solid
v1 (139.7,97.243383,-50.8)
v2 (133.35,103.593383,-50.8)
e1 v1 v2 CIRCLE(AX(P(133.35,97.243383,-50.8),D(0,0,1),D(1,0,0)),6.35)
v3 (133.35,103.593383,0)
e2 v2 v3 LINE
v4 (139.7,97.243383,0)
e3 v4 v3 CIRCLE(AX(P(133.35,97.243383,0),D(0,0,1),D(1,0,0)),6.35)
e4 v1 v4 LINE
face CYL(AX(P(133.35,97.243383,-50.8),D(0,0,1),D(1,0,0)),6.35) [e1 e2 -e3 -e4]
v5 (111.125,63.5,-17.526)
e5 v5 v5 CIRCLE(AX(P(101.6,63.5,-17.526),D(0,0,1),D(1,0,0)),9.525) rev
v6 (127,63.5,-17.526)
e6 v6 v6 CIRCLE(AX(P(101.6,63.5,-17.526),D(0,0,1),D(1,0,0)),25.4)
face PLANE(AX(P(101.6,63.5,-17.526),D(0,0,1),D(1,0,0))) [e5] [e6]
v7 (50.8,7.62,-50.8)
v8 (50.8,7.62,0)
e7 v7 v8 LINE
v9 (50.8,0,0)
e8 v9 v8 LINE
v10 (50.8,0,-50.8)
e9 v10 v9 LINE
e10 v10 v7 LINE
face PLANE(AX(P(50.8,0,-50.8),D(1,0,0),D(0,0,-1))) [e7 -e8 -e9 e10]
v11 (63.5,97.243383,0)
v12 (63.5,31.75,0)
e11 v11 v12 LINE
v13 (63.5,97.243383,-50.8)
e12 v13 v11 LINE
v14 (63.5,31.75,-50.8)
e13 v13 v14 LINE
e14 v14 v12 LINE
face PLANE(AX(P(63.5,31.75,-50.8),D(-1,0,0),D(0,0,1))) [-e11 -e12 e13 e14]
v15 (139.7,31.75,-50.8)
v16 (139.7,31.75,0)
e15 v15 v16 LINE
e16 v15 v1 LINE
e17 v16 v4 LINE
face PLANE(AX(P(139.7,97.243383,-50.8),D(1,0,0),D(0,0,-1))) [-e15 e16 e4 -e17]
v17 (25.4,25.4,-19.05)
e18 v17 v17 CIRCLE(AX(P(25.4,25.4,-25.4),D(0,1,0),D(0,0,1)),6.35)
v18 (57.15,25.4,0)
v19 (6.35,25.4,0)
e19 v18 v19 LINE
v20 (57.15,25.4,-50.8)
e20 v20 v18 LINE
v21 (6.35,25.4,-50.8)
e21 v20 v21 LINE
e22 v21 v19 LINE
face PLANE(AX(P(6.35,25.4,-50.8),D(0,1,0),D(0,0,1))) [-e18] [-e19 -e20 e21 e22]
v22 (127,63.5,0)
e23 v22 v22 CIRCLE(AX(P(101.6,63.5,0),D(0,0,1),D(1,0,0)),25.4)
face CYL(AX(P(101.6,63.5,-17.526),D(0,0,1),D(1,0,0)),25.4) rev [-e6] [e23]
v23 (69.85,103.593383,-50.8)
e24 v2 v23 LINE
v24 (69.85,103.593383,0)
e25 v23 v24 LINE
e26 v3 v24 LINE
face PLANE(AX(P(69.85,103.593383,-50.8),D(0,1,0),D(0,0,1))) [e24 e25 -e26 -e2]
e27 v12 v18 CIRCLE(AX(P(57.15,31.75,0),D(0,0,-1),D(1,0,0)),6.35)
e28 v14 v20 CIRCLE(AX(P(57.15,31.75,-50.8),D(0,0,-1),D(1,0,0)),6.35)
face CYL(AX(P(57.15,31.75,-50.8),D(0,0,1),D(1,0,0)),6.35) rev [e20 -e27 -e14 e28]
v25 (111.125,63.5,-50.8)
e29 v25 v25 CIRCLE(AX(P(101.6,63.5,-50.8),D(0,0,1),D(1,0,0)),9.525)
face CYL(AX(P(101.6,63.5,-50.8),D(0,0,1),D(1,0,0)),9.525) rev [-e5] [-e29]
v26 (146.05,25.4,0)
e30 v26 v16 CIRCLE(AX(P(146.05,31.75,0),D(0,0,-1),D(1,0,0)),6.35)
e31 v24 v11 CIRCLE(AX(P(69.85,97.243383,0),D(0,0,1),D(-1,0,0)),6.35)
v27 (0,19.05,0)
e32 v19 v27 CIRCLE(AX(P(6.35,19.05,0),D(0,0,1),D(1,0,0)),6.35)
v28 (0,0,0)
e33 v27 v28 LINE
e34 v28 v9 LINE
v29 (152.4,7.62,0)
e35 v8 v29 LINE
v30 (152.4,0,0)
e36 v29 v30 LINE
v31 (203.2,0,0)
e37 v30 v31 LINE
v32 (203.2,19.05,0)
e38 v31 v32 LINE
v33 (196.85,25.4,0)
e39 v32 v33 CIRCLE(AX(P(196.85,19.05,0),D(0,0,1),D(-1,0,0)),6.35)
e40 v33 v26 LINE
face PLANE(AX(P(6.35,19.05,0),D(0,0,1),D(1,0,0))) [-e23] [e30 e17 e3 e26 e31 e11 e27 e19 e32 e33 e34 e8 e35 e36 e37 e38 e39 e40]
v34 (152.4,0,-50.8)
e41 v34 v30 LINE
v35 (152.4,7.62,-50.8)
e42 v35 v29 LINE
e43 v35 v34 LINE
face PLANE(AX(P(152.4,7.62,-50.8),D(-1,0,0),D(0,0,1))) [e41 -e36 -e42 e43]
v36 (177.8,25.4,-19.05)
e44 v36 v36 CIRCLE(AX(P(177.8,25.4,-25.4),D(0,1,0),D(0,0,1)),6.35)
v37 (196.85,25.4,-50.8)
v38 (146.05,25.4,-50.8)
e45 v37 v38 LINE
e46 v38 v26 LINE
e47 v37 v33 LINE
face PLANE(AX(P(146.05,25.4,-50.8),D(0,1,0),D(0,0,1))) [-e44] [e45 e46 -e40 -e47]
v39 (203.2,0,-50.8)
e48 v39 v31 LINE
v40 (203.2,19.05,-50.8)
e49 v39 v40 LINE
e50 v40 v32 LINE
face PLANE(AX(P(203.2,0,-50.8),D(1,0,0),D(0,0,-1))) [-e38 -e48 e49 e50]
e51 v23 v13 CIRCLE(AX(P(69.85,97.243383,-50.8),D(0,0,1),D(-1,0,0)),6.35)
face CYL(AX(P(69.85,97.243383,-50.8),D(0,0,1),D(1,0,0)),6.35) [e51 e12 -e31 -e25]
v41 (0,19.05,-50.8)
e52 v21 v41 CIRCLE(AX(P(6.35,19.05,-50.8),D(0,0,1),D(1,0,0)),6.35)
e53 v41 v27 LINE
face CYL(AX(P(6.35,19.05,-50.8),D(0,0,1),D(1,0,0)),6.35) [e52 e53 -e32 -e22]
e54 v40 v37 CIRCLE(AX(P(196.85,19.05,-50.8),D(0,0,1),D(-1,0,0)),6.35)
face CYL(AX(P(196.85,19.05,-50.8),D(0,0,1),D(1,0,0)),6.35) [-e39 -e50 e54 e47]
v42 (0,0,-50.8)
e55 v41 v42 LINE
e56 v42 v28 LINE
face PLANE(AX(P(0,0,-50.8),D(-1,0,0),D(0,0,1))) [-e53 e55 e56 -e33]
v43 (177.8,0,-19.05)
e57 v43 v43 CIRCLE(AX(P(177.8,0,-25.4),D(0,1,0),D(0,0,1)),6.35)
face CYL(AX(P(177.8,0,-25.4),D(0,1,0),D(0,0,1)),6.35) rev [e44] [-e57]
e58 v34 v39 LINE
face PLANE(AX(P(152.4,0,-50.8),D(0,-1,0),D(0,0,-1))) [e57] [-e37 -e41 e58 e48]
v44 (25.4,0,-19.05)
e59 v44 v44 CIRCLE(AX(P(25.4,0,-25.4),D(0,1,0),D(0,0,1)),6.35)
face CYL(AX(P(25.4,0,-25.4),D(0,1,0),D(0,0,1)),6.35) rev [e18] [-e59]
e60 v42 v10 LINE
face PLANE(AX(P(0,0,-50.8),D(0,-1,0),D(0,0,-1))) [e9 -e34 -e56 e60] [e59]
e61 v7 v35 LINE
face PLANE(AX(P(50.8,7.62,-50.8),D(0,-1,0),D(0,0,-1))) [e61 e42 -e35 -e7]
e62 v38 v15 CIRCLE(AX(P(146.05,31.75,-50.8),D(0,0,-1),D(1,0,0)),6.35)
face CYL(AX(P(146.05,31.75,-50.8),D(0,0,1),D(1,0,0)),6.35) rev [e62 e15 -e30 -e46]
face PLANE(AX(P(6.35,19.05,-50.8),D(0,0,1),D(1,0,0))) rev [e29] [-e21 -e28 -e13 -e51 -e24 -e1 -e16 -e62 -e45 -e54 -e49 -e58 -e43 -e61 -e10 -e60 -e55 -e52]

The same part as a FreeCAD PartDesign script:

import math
import FreeCAD as App
import Part
import Sketcher
from FreeCAD import Vector
Q = App.Units.Quantity

doc = App.newDocument("Part")
body = doc.addObject("PartDesign::Body", "Body")

# Sketch on XY plane
sketch1 = body.newObject("Sketcher::SketchObject", "Sketch")
sketch1.AttachmentSupport = (doc.getObject("XY_Plane"), [""])
sketch1.MapMode = "FlatFace"
sketch1.addGeometry([
    Part.LineSegment(Vector(57, 25, 0), Vector(6, 25, 0)),  # 0
    Part.ArcOfCircle(Part.Circle(Vector(6, 19, 0), Vector(0, 0, 1), 6), math.radians(90), math.radians(180)),  # 1
    Part.LineSegment(Vector(0, 19, 0), Vector(0, 0, 0)),  # 2
    Part.LineSegment(Vector(0, 0, 0), Vector(51, 0, 0)),  # 3
    Part.LineSegment(Vector(51, 0, 0), Vector(51, 8, 0)),  # 4
    Part.LineSegment(Vector(51, 8, 0), Vector(152, 8, 0)),  # 5
    Part.LineSegment(Vector(152, 8, 0), Vector(152, 0, 0)),  # 6
    Part.LineSegment(Vector(152, 0, 0), Vector(203, 0, 0)),  # 7
    Part.LineSegment(Vector(203, 0, 0), Vector(203, 19, 0)),  # 8
    Part.ArcOfCircle(Part.Circle(Vector(197, 19, 0), Vector(0, 0, 1), 6), math.radians(0), math.radians(90)),  # 9
    Part.LineSegment(Vector(197, 25, 0), Vector(146, 25, 0)),  # 10
    Part.ArcOfCircle(Part.Circle(Vector(146, 32, 0), Vector(0, 0, 1), 6), math.radians(180), math.radians(270)),  # 11
    Part.LineSegment(Vector(140, 32, 0), Vector(140, 97, 0)),  # 12
    Part.ArcOfCircle(Part.Circle(Vector(133, 97, 0), Vector(0, 0, 1), 6), math.radians(0), math.radians(90)),  # 13
    Part.LineSegment(Vector(133, 104, 0), Vector(70, 104, 0)),  # 14
    Part.ArcOfCircle(Part.Circle(Vector(70, 97, 0), Vector(0, 0, 1), 6), math.radians(90), math.radians(180)),  # 15
    Part.LineSegment(Vector(64, 97, 0), Vector(64, 32, 0)),  # 16
    Part.ArcOfCircle(Part.Circle(Vector(57, 32, 0), Vector(0, 0, 1), 6), math.radians(-90), math.radians(0)),  # 17
], False)
sketch1.addConstraint([
    Sketcher.Constraint("Tangent", 0, 2, 1, 1),
    Sketcher.Constraint("Tangent", 1, 2, 2, 1),
    Sketcher.Constraint("Coincident", 2, 2, 3, 1),
    Sketcher.Constraint("Coincident", 3, 2, 4, 1),
    Sketcher.Constraint("Coincident", 4, 2, 5, 1),
    Sketcher.Constraint("Coincident", 5, 2, 6, 1),
    Sketcher.Constraint("Coincident", 6, 2, 7, 1),
    Sketcher.Constraint("Coincident", 7, 2, 8, 1),
    Sketcher.Constraint("Tangent", 8, 2, 9, 1),
    Sketcher.Constraint("Tangent", 9, 2, 10, 1),
    Sketcher.Constraint("Tangent", 10, 2, 11, 2),
    Sketcher.Constraint("Tangent", 11, 1, 12, 1),
    Sketcher.Constraint("Tangent", 12, 2, 13, 1),
    Sketcher.Constraint("Tangent", 13, 2, 14, 1),
    Sketcher.Constraint("Tangent", 14, 2, 15, 1),
    Sketcher.Constraint("Tangent", 15, 2, 16, 1),
    Sketcher.Constraint("Tangent", 16, 2, 17, 2),
    Sketcher.Constraint("Tangent", 17, 1, 0, 1),
    Sketcher.Constraint("Horizontal", 0),
    Sketcher.Constraint("Vertical", 2),
    Sketcher.Constraint("Horizontal", 3),
    Sketcher.Constraint("Vertical", 4),
    Sketcher.Constraint("Horizontal", 5),
    Sketcher.Constraint("Vertical", 6),
    Sketcher.Constraint("Horizontal", 7),
    Sketcher.Constraint("Vertical", 8),
    Sketcher.Constraint("Horizontal", 10),
    Sketcher.Constraint("Vertical", 12),
    Sketcher.Constraint("Horizontal", 14),
    Sketcher.Constraint("Vertical", 16),
    Sketcher.Constraint("Coincident", 2, 2, -1, 1),
    Sketcher.Constraint("Equal", 1, 9),
    Sketcher.Constraint("Equal", 9, 11),
    Sketcher.Constraint("Equal", 11, 13),
    Sketcher.Constraint("Equal", 13, 15),
    Sketcher.Constraint("Equal", 15, 17),
    Sketcher.Constraint("PointOnObject", 6, 2, -1),
    Sketcher.Constraint("Horizontal", 1, 3, 9, 3),
    Sketcher.Constraint("Equal", 0, 3),
    Sketcher.Constraint("Equal", 3, 7),
    Sketcher.Constraint("Equal", 7, 10),
    Sketcher.Constraint("DistanceX", 0, 2, 0, 1, Q("2 in")),
    Sketcher.Constraint("DistanceX", 5, 1, 5, 2, Q("4 in")),
    Sketcher.Constraint("Radius", 1, Q("0.25 in")),
    Sketcher.Constraint("DistanceY", 4, 1, 4, 2, Q("0.3 in")),
    Sketcher.Constraint("DistanceY", -1, 1, 0, 2, Q("1 in")),
    Sketcher.Constraint("DistanceY", 12, 1, 12, 2, Q("65.493383 mm")),
])
pad1 = body.newObject("PartDesign::Pad", "Pad")
pad1.Profile = sketch1
pad1.Length = Q("2 in")
pad1.Reversed = True

# Sketch on XY plane
sketch2 = body.newObject("Sketcher::SketchObject", "Sketch001")
sketch2.AttachmentSupport = (doc.getObject("XY_Plane"), [""])
sketch2.MapMode = "FlatFace"
sketch2.addGeometry(Part.Circle(Vector(102, 64, 0), Vector(0, 0, 1), 10), False)
sketch2.addConstraint([
    Sketcher.Constraint("Diameter", 0, Q("0.75 in")),
    Sketcher.Constraint("DistanceX", -1, 1, 0, 3, Q("4 in")),
    Sketcher.Constraint("DistanceY", -1, 1, 0, 3, Q("2.5 in")),
])
pocket1 = body.newObject("PartDesign::Pocket", "Pocket")
pocket1.Profile = sketch2
pocket1.Length = Q("2 in")

# Sketch on XY plane
sketch3 = body.newObject("Sketcher::SketchObject", "Sketch002")
sketch3.AttachmentSupport = (doc.getObject("XY_Plane"), [""])
sketch3.MapMode = "FlatFace"
sketch3.addGeometry(Part.Circle(Vector(102, 64, 0), Vector(0, 0, 1), 25), False)
sketch3.addConstraint([
    Sketcher.Constraint("Diameter", 0, Q("2 in")),
    Sketcher.Constraint("DistanceX", -1, 1, 0, 3, Q("4 in")),
    Sketcher.Constraint("DistanceY", -1, 1, 0, 3, Q("2.5 in")),
])
pocket2 = body.newObject("PartDesign::Pocket", "Pocket001")
pocket2.Profile = sketch3
pocket2.Length = Q("0.69 in")

# Sketch on XZ plane
sketch4 = body.newObject("Sketcher::SketchObject", "Sketch003")
sketch4.AttachmentSupport = (doc.getObject("XZ_Plane"), [""])
sketch4.MapMode = "FlatFace"
sketch4.AttachmentOffset = App.Placement(Vector(0, 0, -1 * 25.4), App.Rotation())
sketch4.addGeometry(Part.Circle(Vector(25, -25, 0), Vector(0, 0, 1), 6), False)
sketch4.addConstraint([
    Sketcher.Constraint("Diameter", 0, Q("0.5 in")),
    Sketcher.Constraint("DistanceX", -1, 1, 0, 3, Q("1 in")),
    Sketcher.Constraint("DistanceY", 0, 3, -1, 1, Q("1 in")),
])
pocket3 = body.newObject("PartDesign::Pocket", "Pocket002")
pocket3.Profile = sketch4
pocket3.Type = "ThroughAll"
pocket3.Reversed = True

# Sketch on XZ plane
sketch5 = body.newObject("Sketcher::SketchObject", "Sketch004")
sketch5.AttachmentSupport = (doc.getObject("XZ_Plane"), [""])
sketch5.MapMode = "FlatFace"
sketch5.AttachmentOffset = App.Placement(Vector(0, 0, -1 * 25.4), App.Rotation())
sketch5.addGeometry(Part.Circle(Vector(178, -25, 0), Vector(0, 0, 1), 6), False)
sketch5.addConstraint([
    Sketcher.Constraint("Diameter", 0, Q("0.5 in")),
    Sketcher.Constraint("DistanceX", -1, 1, 0, 3, Q("7 in")),
    Sketcher.Constraint("DistanceY", 0, 3, -1, 1, Q("1 in")),
])
pocket4 = body.newObject("PartDesign::Pocket", "Pocket003")
pocket4.Profile = sketch5
pocket4.Type = "ThroughAll"
pocket4.Reversed = True

doc.recompute()
